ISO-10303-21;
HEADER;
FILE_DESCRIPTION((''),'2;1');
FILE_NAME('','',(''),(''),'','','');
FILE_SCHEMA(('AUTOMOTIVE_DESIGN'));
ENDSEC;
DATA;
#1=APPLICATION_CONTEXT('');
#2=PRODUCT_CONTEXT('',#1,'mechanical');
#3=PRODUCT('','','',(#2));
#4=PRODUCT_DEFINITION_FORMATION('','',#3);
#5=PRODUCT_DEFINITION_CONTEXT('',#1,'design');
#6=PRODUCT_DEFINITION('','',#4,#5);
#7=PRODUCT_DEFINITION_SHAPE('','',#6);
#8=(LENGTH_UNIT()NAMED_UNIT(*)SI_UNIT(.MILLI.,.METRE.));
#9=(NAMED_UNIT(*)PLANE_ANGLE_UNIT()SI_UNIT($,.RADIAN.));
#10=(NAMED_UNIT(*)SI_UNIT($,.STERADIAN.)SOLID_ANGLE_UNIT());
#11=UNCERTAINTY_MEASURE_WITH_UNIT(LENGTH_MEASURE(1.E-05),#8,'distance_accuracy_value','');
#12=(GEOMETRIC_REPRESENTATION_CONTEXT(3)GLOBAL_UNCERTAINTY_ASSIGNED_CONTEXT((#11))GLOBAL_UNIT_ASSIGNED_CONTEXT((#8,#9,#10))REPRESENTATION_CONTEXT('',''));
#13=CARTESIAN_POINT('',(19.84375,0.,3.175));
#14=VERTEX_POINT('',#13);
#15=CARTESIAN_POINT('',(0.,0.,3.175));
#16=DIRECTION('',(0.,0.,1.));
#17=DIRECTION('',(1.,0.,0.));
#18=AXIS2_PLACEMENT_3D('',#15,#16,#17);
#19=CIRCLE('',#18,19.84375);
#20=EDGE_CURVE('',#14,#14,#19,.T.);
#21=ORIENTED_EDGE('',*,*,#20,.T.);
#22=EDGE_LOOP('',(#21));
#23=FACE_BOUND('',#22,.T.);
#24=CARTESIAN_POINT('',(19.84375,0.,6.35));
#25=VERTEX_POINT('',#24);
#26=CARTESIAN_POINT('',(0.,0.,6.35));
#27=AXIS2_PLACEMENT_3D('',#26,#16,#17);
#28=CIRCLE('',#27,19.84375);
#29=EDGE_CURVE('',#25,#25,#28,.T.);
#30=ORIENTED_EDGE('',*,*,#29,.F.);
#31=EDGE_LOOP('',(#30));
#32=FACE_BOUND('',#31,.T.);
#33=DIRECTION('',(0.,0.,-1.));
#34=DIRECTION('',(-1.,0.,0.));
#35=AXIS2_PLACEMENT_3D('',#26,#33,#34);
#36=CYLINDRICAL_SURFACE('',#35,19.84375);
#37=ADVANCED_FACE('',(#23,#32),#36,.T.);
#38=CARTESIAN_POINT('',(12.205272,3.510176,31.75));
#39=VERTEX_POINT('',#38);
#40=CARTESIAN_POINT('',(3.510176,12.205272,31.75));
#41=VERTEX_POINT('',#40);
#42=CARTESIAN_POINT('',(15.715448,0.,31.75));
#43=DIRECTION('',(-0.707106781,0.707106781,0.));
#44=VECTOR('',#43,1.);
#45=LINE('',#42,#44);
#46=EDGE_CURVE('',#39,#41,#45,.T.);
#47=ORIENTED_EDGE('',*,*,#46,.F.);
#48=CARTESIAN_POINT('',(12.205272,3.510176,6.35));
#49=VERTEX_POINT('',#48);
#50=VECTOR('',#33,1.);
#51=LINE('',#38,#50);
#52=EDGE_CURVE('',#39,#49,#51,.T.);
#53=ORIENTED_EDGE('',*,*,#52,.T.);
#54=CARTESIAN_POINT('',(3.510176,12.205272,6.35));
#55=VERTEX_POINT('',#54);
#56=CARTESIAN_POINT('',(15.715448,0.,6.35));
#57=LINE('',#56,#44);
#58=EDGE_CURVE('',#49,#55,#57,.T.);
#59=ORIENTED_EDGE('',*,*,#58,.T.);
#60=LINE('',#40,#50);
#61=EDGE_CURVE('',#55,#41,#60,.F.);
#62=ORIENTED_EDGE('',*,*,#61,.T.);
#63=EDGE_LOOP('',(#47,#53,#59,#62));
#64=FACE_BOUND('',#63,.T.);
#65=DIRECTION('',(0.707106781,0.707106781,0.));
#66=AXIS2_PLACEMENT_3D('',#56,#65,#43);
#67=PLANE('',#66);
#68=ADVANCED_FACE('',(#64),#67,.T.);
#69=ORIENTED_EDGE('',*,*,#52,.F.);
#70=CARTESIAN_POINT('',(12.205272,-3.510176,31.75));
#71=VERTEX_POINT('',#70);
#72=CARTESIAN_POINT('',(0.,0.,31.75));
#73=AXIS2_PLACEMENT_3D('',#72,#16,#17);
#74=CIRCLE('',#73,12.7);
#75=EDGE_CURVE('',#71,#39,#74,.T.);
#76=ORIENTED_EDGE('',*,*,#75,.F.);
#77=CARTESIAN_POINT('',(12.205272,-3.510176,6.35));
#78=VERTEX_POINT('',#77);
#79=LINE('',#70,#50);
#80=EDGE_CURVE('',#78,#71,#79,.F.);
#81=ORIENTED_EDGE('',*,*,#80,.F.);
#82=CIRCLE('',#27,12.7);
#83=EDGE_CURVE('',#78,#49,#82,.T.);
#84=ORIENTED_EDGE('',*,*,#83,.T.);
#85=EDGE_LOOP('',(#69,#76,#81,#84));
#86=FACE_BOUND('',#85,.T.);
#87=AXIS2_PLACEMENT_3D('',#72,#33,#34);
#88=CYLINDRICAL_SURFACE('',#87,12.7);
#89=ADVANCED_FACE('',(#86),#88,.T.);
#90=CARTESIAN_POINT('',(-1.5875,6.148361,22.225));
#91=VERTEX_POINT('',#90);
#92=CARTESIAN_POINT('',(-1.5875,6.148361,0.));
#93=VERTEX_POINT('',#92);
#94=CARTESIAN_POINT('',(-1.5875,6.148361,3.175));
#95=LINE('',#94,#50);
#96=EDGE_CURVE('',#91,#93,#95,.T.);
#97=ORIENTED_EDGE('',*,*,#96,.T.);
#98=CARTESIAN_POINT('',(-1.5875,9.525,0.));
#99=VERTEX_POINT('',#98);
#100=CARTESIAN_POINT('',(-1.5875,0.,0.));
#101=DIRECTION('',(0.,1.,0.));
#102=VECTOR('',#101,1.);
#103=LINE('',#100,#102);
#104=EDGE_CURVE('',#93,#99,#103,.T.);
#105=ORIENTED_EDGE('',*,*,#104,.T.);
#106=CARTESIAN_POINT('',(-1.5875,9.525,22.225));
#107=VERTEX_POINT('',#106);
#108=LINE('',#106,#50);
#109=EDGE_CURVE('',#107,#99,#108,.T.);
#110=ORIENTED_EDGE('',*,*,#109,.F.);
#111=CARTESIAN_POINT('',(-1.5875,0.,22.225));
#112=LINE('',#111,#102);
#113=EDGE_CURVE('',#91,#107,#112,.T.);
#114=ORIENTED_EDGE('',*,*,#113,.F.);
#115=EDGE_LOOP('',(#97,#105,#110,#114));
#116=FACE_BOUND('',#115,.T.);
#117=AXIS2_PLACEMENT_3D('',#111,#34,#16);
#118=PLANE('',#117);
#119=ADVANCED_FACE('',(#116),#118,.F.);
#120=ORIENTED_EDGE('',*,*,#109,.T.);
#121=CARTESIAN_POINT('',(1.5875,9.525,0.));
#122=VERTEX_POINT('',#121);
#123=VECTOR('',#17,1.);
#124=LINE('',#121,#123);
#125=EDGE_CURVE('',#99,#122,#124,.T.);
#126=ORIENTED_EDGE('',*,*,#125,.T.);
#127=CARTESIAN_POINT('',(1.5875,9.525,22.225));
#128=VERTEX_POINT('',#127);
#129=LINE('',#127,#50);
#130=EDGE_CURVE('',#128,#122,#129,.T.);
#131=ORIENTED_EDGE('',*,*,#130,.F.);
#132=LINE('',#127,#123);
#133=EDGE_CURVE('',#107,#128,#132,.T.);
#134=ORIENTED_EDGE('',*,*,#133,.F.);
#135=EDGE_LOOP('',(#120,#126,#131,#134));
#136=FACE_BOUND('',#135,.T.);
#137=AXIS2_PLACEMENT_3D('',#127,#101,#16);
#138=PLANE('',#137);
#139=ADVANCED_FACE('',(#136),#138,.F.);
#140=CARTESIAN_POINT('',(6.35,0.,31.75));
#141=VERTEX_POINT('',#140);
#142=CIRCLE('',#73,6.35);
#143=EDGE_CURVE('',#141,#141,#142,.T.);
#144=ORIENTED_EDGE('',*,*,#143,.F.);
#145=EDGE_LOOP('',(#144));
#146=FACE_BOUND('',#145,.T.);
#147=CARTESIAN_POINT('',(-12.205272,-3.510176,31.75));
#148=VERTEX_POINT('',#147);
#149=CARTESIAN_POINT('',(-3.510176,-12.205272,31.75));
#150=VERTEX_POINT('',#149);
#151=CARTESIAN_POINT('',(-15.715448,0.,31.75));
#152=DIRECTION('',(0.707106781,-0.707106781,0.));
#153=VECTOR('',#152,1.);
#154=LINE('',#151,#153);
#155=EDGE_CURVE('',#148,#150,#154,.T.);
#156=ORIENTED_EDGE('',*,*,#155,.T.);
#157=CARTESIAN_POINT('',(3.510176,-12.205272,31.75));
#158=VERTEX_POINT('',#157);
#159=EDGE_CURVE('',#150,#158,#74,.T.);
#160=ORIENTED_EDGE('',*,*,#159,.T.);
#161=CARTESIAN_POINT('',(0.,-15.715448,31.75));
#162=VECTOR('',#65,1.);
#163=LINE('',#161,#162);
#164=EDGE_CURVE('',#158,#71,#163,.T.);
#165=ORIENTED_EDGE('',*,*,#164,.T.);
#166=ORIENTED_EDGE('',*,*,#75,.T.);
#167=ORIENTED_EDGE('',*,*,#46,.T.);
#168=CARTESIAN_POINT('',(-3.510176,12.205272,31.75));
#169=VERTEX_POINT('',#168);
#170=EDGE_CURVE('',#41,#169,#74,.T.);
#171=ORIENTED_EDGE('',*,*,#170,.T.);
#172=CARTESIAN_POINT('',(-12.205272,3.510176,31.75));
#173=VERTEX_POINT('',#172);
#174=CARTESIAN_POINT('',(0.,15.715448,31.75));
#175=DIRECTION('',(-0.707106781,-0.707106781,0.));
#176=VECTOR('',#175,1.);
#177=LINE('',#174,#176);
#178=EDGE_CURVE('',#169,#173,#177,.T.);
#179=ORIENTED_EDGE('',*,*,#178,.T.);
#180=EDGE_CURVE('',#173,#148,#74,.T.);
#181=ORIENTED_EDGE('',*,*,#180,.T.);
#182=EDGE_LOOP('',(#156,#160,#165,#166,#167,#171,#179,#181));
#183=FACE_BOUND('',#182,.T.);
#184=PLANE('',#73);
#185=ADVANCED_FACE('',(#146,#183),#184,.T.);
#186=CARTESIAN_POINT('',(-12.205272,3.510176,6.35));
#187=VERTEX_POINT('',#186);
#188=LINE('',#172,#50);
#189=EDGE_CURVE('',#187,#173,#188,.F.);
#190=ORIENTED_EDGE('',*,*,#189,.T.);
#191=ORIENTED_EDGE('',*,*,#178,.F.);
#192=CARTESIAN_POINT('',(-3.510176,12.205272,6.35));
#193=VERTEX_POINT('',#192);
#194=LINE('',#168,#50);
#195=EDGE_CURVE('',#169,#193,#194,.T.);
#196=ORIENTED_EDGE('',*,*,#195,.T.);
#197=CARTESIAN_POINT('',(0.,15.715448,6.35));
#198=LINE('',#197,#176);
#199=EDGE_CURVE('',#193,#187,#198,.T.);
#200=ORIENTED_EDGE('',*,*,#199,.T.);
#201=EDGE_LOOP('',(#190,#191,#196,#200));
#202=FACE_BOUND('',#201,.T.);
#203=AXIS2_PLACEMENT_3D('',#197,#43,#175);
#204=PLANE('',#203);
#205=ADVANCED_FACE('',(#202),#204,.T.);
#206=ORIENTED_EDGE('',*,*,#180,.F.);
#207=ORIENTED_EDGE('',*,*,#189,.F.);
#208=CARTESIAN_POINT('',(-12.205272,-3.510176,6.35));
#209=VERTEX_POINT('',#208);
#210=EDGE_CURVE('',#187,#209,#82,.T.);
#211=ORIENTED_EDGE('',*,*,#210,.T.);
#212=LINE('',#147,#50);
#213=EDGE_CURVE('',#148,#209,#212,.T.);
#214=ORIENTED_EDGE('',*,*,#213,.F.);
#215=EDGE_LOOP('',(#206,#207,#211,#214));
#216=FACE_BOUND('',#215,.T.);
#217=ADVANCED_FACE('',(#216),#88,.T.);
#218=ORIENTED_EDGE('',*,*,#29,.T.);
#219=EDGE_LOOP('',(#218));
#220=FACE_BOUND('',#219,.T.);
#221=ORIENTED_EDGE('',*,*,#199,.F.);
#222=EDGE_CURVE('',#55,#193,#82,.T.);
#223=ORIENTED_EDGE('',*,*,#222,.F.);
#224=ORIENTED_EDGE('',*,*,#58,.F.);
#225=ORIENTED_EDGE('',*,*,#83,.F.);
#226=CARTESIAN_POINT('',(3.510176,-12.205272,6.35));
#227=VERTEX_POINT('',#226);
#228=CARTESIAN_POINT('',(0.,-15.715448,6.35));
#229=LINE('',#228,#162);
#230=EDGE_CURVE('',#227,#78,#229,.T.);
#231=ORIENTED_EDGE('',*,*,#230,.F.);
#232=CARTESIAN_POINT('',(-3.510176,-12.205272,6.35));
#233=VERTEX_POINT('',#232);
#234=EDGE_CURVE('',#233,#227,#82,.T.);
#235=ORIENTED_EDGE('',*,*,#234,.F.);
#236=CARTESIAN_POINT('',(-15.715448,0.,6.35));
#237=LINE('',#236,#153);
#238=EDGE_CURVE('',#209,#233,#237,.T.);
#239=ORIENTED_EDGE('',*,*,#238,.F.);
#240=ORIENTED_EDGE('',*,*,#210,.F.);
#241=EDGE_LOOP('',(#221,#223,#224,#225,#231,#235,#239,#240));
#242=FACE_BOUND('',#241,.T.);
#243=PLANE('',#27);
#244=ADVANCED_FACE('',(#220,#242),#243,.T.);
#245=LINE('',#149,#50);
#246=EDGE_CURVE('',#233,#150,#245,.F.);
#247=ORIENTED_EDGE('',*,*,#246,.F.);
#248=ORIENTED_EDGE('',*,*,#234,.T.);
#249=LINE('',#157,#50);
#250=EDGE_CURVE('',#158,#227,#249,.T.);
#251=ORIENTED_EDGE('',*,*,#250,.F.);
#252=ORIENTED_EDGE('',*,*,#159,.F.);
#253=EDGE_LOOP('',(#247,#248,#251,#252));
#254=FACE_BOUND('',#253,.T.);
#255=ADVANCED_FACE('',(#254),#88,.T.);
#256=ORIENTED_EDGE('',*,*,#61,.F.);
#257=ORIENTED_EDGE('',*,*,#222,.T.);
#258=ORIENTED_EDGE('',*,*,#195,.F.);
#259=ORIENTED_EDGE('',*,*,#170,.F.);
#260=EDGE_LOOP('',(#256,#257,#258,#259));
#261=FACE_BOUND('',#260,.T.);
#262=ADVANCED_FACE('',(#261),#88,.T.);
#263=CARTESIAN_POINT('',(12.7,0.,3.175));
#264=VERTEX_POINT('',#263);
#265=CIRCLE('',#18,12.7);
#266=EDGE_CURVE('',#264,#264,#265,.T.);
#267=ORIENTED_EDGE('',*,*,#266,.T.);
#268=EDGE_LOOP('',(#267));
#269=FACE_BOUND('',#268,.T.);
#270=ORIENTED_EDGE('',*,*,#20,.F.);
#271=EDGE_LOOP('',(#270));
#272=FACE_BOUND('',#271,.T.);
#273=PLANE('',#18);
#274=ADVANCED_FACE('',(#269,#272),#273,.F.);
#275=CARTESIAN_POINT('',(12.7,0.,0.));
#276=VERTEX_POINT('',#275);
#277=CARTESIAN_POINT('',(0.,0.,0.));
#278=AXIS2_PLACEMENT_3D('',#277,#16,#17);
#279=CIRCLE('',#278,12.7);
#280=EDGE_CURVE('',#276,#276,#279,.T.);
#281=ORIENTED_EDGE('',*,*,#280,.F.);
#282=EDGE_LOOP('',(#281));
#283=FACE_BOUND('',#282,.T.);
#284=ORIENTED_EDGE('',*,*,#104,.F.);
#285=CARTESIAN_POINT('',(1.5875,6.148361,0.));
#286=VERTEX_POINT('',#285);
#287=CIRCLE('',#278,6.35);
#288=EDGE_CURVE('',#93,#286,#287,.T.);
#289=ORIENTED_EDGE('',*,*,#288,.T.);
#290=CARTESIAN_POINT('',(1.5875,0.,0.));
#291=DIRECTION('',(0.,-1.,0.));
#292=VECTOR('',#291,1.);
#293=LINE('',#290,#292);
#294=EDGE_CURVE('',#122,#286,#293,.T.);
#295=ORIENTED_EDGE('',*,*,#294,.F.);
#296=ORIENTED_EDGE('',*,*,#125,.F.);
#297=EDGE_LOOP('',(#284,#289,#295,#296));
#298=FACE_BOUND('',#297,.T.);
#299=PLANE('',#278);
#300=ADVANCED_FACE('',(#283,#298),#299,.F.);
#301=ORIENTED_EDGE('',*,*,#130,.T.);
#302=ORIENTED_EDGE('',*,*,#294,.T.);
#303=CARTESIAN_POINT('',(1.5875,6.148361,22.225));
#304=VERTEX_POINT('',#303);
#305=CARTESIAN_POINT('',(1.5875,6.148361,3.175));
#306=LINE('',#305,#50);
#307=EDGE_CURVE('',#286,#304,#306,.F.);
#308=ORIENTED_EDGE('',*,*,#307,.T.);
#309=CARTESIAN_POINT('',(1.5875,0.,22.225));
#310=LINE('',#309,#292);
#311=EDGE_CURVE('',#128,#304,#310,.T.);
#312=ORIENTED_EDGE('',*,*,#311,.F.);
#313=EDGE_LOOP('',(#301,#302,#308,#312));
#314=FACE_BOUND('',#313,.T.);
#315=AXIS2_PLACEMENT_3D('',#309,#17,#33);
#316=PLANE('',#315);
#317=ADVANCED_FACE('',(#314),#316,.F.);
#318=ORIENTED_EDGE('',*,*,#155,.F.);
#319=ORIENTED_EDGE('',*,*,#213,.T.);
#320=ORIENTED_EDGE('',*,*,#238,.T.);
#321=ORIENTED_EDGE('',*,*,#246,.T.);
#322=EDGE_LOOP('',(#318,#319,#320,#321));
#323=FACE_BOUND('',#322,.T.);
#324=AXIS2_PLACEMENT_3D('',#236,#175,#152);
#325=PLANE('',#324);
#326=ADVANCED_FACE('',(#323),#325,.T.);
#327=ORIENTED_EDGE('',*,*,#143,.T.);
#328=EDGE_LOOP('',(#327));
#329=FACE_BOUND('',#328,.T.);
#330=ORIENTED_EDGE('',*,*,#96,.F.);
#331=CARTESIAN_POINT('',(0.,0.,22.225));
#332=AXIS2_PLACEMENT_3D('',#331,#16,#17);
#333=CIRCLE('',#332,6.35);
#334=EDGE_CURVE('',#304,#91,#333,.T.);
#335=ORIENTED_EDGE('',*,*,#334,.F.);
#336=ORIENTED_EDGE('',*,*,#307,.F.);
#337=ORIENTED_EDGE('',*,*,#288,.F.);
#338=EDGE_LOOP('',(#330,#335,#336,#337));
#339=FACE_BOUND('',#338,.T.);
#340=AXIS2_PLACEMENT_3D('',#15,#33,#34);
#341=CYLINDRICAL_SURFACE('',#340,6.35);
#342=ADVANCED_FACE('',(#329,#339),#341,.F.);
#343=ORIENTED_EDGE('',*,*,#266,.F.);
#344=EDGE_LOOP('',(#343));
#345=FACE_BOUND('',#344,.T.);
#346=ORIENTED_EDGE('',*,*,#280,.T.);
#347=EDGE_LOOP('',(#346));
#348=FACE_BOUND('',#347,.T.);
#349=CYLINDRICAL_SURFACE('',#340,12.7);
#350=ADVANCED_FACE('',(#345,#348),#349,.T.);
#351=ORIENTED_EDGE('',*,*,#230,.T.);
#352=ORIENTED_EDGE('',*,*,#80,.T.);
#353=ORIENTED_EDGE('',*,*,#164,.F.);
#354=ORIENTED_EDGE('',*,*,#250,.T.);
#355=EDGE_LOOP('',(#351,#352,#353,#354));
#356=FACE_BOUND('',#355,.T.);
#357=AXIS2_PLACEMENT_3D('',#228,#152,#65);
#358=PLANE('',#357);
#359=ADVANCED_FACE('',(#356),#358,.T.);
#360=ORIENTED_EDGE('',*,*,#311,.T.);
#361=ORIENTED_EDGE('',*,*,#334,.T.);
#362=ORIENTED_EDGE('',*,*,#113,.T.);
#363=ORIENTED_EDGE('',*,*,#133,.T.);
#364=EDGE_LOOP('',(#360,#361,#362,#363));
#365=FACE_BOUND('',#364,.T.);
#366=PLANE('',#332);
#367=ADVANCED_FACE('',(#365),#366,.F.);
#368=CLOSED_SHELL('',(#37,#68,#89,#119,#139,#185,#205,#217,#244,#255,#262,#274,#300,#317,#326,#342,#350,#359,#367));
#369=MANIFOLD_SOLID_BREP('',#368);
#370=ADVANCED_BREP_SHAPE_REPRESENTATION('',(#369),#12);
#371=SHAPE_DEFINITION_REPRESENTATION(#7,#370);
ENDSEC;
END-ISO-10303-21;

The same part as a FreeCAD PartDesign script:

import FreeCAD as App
import Part
import Sketcher
from FreeCAD import Vector
Q = App.Units.Quantity


def add_polygon(sketch, points):
    """Adds a closed chain of lines whose ends are joined by coincident constraints."""
    first, n = sketch.GeometryCount, len(points)
    for a, b in zip(points, points[1:] + points[:1]):
        sketch.addGeometry(Part.LineSegment(App.Vector(*a, 0), App.Vector(*b, 0)), False)
    for i in range(n):
        sketch.addConstraint(Sketcher.Constraint("Coincident", first + i, 2, first + (i + 1) % n, 1))

doc = App.newDocument("Part")
body = doc.addObject("PartDesign::Body", "Body")

# Sketch on XY plane
sketch1 = doc.addObject("Sketcher::SketchObject", "Sketch")
body.addObject(sketch1)
sketch1.AttachmentSupport = (doc.XY_Plane, [""])
sketch1.MapMode = "FlatFace"
sketch1.addGeometry([
    Part.Circle(Vector(0, 0, 0), Vector(0, 0, 1), 13),
    Part.Circle(Vector(0, 0, 0), Vector(0, 0, 1), 6),
], False)
sketch1.addConstraint([
    Sketcher.Constraint("Coincident", 0, 3, -1, 1),
    Sketcher.Constraint("Coincident", 1, 3, -1, 1),
    Sketcher.Constraint("Diameter", 0, Q("1 in")),
    Sketcher.Constraint("Diameter", 1, Q("0.5 in")),
])
pad1 = doc.addObject("PartDesign::Pad", "Pad")
body.addObject(pad1)
pad1.Profile = sketch1
pad1.Length = Q("0.125 in")

# Sketch on XY plane
sketch2 = doc.addObject("Sketcher::SketchObject", "Sketch001")
body.addObject(sketch2)
sketch2.AttachmentSupport = (doc.XY_Plane, [""])
sketch2.MapMode = "FlatFace"
sketch2.AttachmentOffset = App.Placement(Vector(0, 0, 0.125 * 25.4), App.Rotation())
sketch2.addGeometry([
    Part.Circle(Vector(0, 0, 0), Vector(0, 0, 1), 20),
    Part.Circle(Vector(0, 0, 0), Vector(0, 0, 1), 6),
], False)
sketch2.addConstraint([
    Sketcher.Constraint("Coincident", 0, 3, -1, 1),
    Sketcher.Constraint("Coincident", 1, 3, -1, 1),
    Sketcher.Constraint("Diameter", 1, Q("0.5 in")),
    Sketcher.Constraint("Diameter", 0, Q("1.5625 in")),
])
pad2 = doc.addObject("PartDesign::Pad", "Pad001")
body.addObject(pad2)
pad2.Profile = sketch2
pad2.Length = Q("0.125 in")

# Sketch on XY plane
sketch3 = doc.addObject("Sketcher::SketchObject", "Sketch002")
body.addObject(sketch3)
sketch3.AttachmentSupport = (doc.XY_Plane, [""])
sketch3.MapMode = "FlatFace"
sketch3.AttachmentOffset = App.Placement(Vector(0, 0, 0.25 * 25.4), App.Rotation())
sketch3.addGeometry([
    Part.Circle(Vector(0, 0, 0), Vector(0, 0, 1), 13),
    Part.Circle(Vector(0, 0, 0), Vector(0, 0, 1), 6),
], False)
sketch3.addConstraint([
    Sketcher.Constraint("Coincident", 0, 3, -1, 1),
    Sketcher.Constraint("Coincident", 1, 3, -1, 1),
    Sketcher.Constraint("Diameter", 0, Q("1 in")),
    Sketcher.Constraint("Diameter", 1, Q("0.5 in")),
])
pad3 = doc.addObject("PartDesign::Pad", "Pad002")
body.addObject(pad3)
pad3.Profile = sketch3
pad3.Length = Q("1 in")

# Sketch on XY plane
sketch4 = doc.addObject("Sketcher::SketchObject", "Sketch003")
body.addObject(sketch4)
sketch4.AttachmentSupport = (doc.XY_Plane, [""])
sketch4.MapMode = "FlatFace"
add_polygon(sketch4, [(1.6, 9.5), (1.6, 0), (-1.6, 0), (-1.6, 9.5)])  # lines 0-3
sketch4.addConstraint([
    Sketcher.Constraint("Vertical", 0),
    Sketcher.Constraint("Horizontal", 1),
    Sketcher.Constraint("Vertical", 2),
    Sketcher.Constraint("Horizontal", 3),
    Sketcher.Constraint("Symmetric", 0, 2, 1, 2, -1, 1),
    Sketcher.Constraint("DistanceX", 1, 2, 1, 1, Q("0.125 in")),
    Sketcher.Constraint("DistanceY", 0, 2, 0, 1, Q("0.375 in")),
])
pocket1 = doc.addObject("PartDesign::Pocket", "Pocket")
body.addObject(pocket1)
pocket1.Profile = sketch4
pocket1.Length = Q("0.875 in")
pocket1.Reversed = True

# Sketch on XY plane
sketch5 = doc.addObject("Sketcher::SketchObject", "Sketch004")
body.addObject(sketch5)
sketch5.AttachmentSupport = (doc.XY_Plane, [""])
sketch5.MapMode = "FlatFace"
sketch5.AttachmentOffset = App.Placement(Vector(0, 0, 1.25 * 25.4), App.Rotation())
sketch5.addGeometry(Part.Circle(Vector(0, 0, 0), Vector(0, 0, 1), 24), False)  # 0
add_polygon(sketch5, [(-16, 0), (0, 16), (16, 0), (0, -16)])  # lines 1-4
sketch5.addConstraint([
    Sketcher.Constraint("Coincident", 0, 3, -1, 1),
    Sketcher.Constraint("Symmetric", 1, 2, 3, 2, -1, 1),
    Sketcher.Constraint("Symmetric", 2, 2, 4, 2, -1, 1),
    Sketcher.Constraint("PointOnObject", 1, 2, -2),
    Sketcher.Constraint("PointOnObject", 2, 2, -1),
    Sketcher.Constraint("Perpendicular", 1, 2),
    Sketcher.Constraint("Diameter", 0, 47.674001),
    Sketcher.Constraint("Distance", 1, Q("0.875 in")),
])
pocket2 = doc.addObject("PartDesign::Pocket", "Pocket001")
body.addObject(pocket2)
pocket2.Profile = sketch5
pocket2.Length = Q("1 in")

doc.recompute()
